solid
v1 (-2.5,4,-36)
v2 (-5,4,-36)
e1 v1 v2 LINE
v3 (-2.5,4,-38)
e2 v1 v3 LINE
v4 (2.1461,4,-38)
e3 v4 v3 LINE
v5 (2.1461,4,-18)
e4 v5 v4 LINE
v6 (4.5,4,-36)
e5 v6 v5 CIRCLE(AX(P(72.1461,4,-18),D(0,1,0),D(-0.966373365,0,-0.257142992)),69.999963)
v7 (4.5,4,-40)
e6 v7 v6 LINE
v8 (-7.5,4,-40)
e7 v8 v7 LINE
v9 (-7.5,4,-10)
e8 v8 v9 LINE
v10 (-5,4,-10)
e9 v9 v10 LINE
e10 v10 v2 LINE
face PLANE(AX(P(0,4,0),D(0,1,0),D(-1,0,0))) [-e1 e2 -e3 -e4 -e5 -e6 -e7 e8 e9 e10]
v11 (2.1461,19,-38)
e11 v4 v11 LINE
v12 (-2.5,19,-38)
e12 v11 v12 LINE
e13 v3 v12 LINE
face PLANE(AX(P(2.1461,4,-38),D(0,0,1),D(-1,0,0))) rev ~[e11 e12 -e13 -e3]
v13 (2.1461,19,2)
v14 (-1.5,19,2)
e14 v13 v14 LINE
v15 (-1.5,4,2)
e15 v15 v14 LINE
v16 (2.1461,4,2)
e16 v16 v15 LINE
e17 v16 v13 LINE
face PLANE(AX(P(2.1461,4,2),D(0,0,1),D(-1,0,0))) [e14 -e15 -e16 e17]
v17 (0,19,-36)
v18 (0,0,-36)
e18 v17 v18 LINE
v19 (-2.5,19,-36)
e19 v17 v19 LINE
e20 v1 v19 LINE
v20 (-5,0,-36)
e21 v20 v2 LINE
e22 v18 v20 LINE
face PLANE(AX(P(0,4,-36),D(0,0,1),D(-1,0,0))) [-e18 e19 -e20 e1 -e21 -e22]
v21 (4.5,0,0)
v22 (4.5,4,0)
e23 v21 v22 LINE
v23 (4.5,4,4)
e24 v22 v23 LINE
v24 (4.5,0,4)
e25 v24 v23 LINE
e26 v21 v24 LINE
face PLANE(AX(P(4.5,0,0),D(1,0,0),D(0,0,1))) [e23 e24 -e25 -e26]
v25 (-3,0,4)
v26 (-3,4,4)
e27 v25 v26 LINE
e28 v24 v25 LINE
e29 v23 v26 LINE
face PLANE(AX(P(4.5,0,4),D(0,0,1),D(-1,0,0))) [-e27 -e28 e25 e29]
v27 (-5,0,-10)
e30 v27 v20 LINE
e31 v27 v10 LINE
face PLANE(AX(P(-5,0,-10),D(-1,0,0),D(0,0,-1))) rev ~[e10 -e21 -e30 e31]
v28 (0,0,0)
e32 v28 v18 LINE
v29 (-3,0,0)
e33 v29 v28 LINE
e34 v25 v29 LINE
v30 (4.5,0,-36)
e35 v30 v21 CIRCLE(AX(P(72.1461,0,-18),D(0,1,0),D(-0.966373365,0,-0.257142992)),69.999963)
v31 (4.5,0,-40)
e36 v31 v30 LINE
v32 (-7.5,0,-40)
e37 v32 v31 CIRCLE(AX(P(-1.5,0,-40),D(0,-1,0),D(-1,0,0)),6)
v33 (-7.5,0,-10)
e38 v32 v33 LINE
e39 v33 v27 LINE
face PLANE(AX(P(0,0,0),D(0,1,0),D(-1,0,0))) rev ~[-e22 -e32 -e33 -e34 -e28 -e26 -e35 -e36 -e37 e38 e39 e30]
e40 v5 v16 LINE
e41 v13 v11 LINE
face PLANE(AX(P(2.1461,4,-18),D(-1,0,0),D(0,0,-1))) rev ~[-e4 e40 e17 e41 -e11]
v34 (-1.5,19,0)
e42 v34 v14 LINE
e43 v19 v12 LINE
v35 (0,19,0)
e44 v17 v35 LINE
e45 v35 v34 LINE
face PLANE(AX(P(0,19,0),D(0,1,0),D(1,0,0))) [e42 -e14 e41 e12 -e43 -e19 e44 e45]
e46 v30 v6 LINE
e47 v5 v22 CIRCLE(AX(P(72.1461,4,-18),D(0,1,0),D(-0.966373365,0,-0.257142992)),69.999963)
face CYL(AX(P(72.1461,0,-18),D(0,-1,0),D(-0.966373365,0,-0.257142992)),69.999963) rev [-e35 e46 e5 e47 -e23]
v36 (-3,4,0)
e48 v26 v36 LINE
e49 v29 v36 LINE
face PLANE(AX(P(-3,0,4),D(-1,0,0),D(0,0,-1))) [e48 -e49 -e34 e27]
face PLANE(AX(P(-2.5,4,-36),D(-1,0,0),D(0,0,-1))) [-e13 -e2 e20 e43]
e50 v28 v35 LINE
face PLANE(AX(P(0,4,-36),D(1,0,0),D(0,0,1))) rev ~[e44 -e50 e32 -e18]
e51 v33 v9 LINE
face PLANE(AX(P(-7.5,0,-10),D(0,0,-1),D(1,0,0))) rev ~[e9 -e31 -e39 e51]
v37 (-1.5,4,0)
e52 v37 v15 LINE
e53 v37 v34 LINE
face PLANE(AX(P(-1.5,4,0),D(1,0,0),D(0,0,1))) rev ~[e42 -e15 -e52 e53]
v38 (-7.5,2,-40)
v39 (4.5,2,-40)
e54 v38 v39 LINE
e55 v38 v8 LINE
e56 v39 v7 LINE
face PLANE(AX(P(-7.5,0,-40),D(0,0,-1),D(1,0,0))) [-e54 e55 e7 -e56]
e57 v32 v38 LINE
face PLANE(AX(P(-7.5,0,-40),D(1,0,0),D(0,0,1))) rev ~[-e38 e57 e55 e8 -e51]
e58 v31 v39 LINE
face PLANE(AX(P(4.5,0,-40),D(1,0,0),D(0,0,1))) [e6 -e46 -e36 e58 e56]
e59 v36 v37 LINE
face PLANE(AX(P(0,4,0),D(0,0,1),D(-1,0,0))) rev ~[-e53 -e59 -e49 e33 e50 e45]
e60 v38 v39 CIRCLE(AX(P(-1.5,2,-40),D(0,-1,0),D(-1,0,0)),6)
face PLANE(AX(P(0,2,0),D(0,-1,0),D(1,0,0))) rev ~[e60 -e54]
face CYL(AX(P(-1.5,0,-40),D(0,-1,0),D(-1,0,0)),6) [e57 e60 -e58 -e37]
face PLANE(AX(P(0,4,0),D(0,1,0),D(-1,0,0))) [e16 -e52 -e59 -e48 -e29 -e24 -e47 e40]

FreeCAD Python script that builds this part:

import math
import FreeCAD as App
import Part
import Sketcher

V = App.Vector


def add_polygon(sketch, points):
    """Adds a closed chain of lines whose ends are joined by coincident constraints."""
    first, n = sketch.GeometryCount, len(points)
    for a, b in zip(points, points[1:] + points[:1]):
        sketch.addGeometry(Part.LineSegment(App.Vector(*a, 0), App.Vector(*b, 0)), False)
    for i in range(n):
        sketch.addConstraint(Sketcher.Constraint("Coincident", first + i, 2, first + (i + 1) % n, 1))

doc = App.newDocument("Part")
body = doc.addObject("PartDesign::Body", "Body")

# Sketch on XZ plane
sketch1 = body.newObject("Sketcher::SketchObject", "Sketch")
sketch1.AttachmentSupport = (doc.getObject("XZ_Plane"), [""])
sketch1.MapMode = "FlatFace"
sketch1.addGeometry(Part.LineSegment(V(0, -36, 0), V(0, 0, 0)), False)
sketch1.addGeometry(Part.LineSegment(V(0, 0, 0), V(-3, 0, 0)), False)
sketch1.addGeometry(Part.LineSegment(V(-3, 0, 0), V(-3, 4, 0)), False)
sketch1.addGeometry(Part.LineSegment(V(-3, 4, 0), V(4.5, 4, 0)), False)
sketch1.addGeometry(Part.LineSegment(V(4.5, 4, 0), V(4.5, 0, 0)), False)
sketch1.addGeometry(Part.ArcOfCircle(Part.Circle(V(72.1, -18, 0), V(0, 0, 1), 70), math.radians(165), math.radians(195)), False)
sketch1.addGeometry(Part.LineSegment(V(4.5, -36, 0), V(4.5, -40, 0)), False)
sketch1.addGeometry(Part.LineSegment(V(4.5, -40, 0), V(-7.5, -40, 0)), False)
sketch1.addGeometry(Part.LineSegment(V(-7.5, -40, 0), V(-7.5, -10, 0)), False)
sketch1.addGeometry(Part.LineSegment(V(-7.5, -10, 0), V(-5, -10, 0)), False)
sketch1.addGeometry(Part.LineSegment(V(-5, -10, 0), V(-5, -36, 0)), False)
sketch1.addGeometry(Part.LineSegment(V(-5, -36, 0), V(0, -36, 0)), False)
sketch1.addConstraint(Sketcher.Constraint("Coincident", 0, 2, 1, 1))
sketch1.addConstraint(Sketcher.Constraint("Coincident", 1, 2, 2, 1))
sketch1.addConstraint(Sketcher.Constraint("Coincident", 2, 2, 3, 1))
sketch1.addConstraint(Sketcher.Constraint("Coincident", 3, 2, 4, 1))
sketch1.addConstraint(Sketcher.Constraint("Coincident", 4, 2, 5, 1))
sketch1.addConstraint(Sketcher.Constraint("Coincident", 5, 2, 6, 1))
sketch1.addConstraint(Sketcher.Constraint("Coincident", 6, 2, 7, 1))
sketch1.addConstraint(Sketcher.Constraint("Coincident", 7, 2, 8, 1))
sketch1.addConstraint(Sketcher.Constraint("Coincident", 8, 2, 9, 1))
sketch1.addConstraint(Sketcher.Constraint("Coincident", 9, 2, 10, 1))
sketch1.addConstraint(Sketcher.Constraint("Coincident", 10, 2, 11, 1))
sketch1.addConstraint(Sketcher.Constraint("Coincident", 11, 2, 0, 1))
sketch1.addConstraint(Sketcher.Constraint("Vertical", 0))
sketch1.addConstraint(Sketcher.Constraint("Horizontal", 1))
sketch1.addConstraint(Sketcher.Constraint("Vertical", 2))
sketch1.addConstraint(Sketcher.Constraint("Horizontal", 3))
sketch1.addConstraint(Sketcher.Constraint("Vertical", 4))
sketch1.addConstraint(Sketcher.Constraint("Vertical", 6))
sketch1.addConstraint(Sketcher.Constraint("Horizontal", 7))
sketch1.addConstraint(Sketcher.Constraint("Vertical", 8))
sketch1.addConstraint(Sketcher.Constraint("Horizontal", 9))
sketch1.addConstraint(Sketcher.Constraint("Vertical", 10))
sketch1.addConstraint(Sketcher.Constraint("Horizontal", 11))
sketch1.addConstraint(Sketcher.Constraint("Coincident", 0, 2, -1, 1))
sketch1.addConstraint(Sketcher.Constraint("PointOnObject", 4, 2, -1))
sketch1.addConstraint(Sketcher.Constraint("Horizontal", 5, 2, 10, 2))
sketch1.addConstraint(Sketcher.Constraint("Vertical", 4, 2, 5, 2))
sketch1.addConstraint(Sketcher.Constraint("Equal", 4, 6))
sketch1.addConstraint(Sketcher.Constraint("Radius", 5, 70.0))
sketch1.addConstraint(Sketcher.Constraint("DistanceX", 7, 2, 7, 1, 12.0))
sketch1.addConstraint(Sketcher.Constraint("DistanceX", 11, 1, 11, 2, 5.0))
sketch1.addConstraint(Sketcher.Constraint("DistanceY", 0, 1, 0, 2, 36.0))
sketch1.addConstraint(Sketcher.Constraint("DistanceY", 2, 1, 2, 2, 4.0))
sketch1.addConstraint(Sketcher.Constraint("DistanceY", 8, 1, 8, 2, 30.0))
sketch1.addConstraint(Sketcher.Constraint("DistanceX", 3, 1, 3, 2, 7.5))
sketch1.addConstraint(Sketcher.Constraint("DistanceX", 7, 2, -1, 1, 7.5))
pad1 = body.newObject("PartDesign::Pad", "Pad")
pad1.Profile = sketch1
pad1.Length = 4
pad1.Reversed = True

# Sketch on XZ plane
sketch2 = body.newObject("Sketcher::SketchObject", "Sketch001")
sketch2.AttachmentSupport = (doc.getObject("XZ_Plane"), [""])
sketch2.MapMode = "FlatFace"
sketch2.addGeometry(Part.LineSegment(V(4, -40, 0), V(-8, -40, 0)), False)
sketch2.addGeometry(Part.ArcOfCircle(Part.Circle(V(-2, -40, 0), V(0, 0, 1), 6), math.radians(180), math.radians(360)), False)
sketch2.addConstraint(Sketcher.Constraint("Coincident", 0, 1, 1, 2))
sketch2.addConstraint(Sketcher.Constraint("Coincident", 1, 1, 0, 2))
sketch2.addConstraint(Sketcher.Constraint("Horizontal", 0))
sketch2.addConstraint(Sketcher.Constraint("Horizontal", 1, 3, 0, 1))
sketch2.addConstraint(Sketcher.Constraint("Radius", 1, 6.0))
sketch2.addConstraint(Sketcher.Constraint("DistanceY", 1, 3, -1, 1, 40.0))
sketch2.addConstraint(Sketcher.Constraint("DistanceX", 1, 3, -1, 1, 1.5))
pad2 = body.newObject("PartDesign::Pad", "Pad001")
pad2.Profile = sketch2
pad2.Length = 2
pad2.Reversed = True

# Sketch on XZ plane
sketch3 = body.newObject("Sketcher::SketchObject", "Sketch002")
sketch3.AttachmentSupport = (doc.getObject("XZ_Plane"), [""])
sketch3.MapMode = "FlatFace"
sketch3.AttachmentOffset = App.Placement(V(0, 0, -4), App.Rotation())
add_polygon(sketch3, [(0, -36), (0, 0), (-1.5, 0), (-1.5, 2), (2.1, 2), (2.1, -38), (-2.5, -38), (-2.5, -36)])  # lines 0-7
sketch3.addConstraint(Sketcher.Constraint("Vertical", 0))
sketch3.addConstraint(Sketcher.Constraint("Horizontal", 1))
sketch3.addConstraint(Sketcher.Constraint("Vertical", 2))
sketch3.addConstraint(Sketcher.Constraint("Horizontal", 3))
sketch3.addConstraint(Sketcher.Constraint("Vertical", 4))
sketch3.addConstraint(Sketcher.Constraint("Horizontal", 5))
sketch3.addConstraint(Sketcher.Constraint("Vertical", 6))
sketch3.addConstraint(Sketcher.Constraint("Horizontal", 7))
sketch3.addConstraint(Sketcher.Constraint("Coincident", 0, 2, -1, 1))
sketch3.addConstraint(Sketcher.Constraint("Equal", 2, 6))
sketch3.addConstraint(Sketcher.Constraint("DistanceY", 2, 1, 2, 2, 2.0))
sketch3.addConstraint(Sketcher.Constraint("DistanceY", 0, 1, 0, 2, 36.0))
sketch3.addConstraint(Sketcher.Constraint("DistanceX", 1, 2, 1, 1, 1.5))
sketch3.addConstraint(Sketcher.Constraint("DistanceX", 7, 1, 7, 2, 2.5))
sketch3.addConstraint(Sketcher.Constraint("DistanceX", 3, 1, 3, 2, 3.646))
pad3 = body.newObject("PartDesign::Pad", "Pad002")
pad3.Profile = sketch3
pad3.Length = 15
pad3.Reversed = True

doc.recompute()
